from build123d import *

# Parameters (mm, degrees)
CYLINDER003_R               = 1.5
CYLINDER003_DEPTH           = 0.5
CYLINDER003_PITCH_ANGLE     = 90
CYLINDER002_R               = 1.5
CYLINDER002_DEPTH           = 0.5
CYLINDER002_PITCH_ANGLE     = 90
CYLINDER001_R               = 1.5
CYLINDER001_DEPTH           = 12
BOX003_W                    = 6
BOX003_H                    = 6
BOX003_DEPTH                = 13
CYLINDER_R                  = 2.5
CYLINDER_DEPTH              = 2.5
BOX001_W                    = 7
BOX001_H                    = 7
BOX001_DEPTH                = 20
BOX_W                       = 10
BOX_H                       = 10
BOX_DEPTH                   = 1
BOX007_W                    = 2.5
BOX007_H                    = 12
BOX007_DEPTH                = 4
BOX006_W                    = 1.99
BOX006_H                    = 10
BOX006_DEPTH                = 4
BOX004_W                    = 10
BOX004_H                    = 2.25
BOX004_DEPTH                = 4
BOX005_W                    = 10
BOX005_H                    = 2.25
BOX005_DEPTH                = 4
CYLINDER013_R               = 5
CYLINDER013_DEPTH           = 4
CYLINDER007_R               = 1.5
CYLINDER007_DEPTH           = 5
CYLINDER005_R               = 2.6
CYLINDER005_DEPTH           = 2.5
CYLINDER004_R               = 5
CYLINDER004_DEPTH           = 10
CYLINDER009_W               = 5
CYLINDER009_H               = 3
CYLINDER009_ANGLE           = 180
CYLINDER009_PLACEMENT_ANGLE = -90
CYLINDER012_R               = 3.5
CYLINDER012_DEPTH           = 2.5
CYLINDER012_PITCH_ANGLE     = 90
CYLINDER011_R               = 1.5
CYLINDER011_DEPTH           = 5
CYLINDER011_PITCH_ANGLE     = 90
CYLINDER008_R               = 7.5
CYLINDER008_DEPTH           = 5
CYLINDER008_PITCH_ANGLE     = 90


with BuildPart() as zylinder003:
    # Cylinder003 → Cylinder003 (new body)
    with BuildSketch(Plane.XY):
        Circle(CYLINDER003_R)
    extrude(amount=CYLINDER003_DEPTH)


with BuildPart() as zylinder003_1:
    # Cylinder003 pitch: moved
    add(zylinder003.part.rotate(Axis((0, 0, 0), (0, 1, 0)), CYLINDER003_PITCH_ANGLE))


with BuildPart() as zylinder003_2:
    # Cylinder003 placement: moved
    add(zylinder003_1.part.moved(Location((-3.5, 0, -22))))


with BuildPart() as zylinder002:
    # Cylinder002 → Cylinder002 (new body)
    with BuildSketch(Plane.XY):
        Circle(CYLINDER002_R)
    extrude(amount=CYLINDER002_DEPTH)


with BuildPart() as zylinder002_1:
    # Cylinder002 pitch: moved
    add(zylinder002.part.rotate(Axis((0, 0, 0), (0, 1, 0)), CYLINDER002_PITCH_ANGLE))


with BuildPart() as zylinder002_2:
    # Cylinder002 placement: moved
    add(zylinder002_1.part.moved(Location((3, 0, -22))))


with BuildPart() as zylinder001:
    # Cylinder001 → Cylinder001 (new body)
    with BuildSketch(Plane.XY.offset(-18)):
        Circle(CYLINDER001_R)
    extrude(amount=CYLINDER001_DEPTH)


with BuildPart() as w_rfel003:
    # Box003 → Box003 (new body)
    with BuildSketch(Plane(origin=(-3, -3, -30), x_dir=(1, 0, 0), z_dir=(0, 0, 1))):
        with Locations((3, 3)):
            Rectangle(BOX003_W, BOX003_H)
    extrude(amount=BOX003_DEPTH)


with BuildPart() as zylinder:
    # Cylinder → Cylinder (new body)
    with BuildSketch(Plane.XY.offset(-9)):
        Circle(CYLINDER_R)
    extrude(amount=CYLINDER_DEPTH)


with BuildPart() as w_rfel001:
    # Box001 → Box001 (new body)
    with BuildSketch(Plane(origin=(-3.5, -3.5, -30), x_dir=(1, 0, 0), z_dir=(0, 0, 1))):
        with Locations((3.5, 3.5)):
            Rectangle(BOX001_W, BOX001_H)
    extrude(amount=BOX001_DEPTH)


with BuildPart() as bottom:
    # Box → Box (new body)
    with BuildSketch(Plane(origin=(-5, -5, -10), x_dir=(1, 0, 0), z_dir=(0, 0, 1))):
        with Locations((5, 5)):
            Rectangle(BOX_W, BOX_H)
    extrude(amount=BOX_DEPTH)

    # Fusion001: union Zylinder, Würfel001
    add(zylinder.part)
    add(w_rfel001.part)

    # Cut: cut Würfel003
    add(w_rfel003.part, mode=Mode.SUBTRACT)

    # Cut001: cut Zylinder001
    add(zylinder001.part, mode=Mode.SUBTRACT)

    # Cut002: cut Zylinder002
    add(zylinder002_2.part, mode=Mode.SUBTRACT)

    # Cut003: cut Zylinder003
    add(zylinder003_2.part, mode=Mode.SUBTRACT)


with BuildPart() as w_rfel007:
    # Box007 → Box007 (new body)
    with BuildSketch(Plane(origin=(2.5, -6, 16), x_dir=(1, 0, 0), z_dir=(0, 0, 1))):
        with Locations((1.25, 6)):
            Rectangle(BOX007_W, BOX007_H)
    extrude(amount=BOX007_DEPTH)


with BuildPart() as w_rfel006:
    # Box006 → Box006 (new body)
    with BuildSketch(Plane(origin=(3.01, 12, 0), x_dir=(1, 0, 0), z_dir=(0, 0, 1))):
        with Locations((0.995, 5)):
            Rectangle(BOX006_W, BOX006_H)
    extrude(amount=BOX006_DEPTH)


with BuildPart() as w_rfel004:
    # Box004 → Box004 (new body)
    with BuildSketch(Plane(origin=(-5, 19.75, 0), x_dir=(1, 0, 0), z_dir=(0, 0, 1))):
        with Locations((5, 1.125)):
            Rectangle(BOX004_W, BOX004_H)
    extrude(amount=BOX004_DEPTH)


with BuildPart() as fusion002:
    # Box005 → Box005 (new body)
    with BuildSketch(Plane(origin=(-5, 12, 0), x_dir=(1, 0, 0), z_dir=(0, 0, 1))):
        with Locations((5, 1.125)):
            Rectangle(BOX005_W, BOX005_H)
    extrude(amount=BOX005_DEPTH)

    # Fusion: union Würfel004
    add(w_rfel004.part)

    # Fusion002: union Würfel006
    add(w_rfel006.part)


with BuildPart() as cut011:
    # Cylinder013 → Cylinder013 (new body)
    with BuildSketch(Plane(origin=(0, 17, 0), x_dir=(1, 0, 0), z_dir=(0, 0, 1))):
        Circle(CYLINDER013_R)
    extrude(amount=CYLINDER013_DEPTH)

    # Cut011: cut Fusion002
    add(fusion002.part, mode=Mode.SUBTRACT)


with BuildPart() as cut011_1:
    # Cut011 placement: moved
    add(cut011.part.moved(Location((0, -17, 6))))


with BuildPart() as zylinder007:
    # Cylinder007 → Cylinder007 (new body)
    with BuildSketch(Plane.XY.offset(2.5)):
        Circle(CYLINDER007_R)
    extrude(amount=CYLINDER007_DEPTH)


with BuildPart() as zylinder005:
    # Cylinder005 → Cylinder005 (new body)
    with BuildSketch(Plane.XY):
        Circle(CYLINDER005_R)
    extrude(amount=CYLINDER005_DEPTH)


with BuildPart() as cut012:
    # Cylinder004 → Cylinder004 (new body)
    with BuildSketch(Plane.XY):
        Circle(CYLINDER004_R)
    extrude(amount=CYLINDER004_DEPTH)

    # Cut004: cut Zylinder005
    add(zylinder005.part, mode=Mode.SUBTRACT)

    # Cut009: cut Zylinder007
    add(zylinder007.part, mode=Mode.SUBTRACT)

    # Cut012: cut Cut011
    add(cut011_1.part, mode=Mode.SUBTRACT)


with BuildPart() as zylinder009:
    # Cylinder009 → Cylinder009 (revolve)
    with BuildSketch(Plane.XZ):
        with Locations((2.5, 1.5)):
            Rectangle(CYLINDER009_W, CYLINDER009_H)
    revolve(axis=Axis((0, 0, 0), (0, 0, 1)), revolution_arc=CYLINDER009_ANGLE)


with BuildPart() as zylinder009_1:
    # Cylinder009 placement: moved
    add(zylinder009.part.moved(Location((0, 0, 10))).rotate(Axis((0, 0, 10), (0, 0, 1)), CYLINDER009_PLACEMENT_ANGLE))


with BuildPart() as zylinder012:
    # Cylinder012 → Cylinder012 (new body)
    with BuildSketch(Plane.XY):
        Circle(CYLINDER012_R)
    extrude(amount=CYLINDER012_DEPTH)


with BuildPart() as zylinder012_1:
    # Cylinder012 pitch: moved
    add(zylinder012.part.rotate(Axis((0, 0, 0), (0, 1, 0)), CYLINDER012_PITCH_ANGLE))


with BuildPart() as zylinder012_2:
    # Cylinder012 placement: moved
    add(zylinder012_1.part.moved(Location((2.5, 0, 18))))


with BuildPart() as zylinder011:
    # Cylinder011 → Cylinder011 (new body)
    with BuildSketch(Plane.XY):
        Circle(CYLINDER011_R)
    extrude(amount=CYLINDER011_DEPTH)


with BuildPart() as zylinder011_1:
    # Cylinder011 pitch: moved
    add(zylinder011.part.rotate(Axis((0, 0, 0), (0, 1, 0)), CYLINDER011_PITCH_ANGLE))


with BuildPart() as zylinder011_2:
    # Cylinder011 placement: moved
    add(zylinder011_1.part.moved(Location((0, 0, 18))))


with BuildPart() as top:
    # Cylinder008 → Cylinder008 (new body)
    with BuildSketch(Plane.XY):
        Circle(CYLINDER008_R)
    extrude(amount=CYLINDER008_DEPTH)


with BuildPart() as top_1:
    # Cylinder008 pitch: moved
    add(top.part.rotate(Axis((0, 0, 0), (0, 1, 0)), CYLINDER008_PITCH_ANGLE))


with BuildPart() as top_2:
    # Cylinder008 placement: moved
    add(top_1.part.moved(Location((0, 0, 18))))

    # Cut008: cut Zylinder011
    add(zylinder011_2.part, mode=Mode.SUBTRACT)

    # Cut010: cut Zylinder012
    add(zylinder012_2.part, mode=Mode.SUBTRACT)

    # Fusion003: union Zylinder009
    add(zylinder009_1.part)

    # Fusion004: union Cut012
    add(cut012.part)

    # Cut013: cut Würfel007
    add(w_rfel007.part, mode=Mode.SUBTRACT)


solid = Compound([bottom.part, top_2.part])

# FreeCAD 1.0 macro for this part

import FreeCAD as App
import Part
import Sketcher
Q = App.Units.Quantity

doc = App.newDocument("Part")
body = doc.addObject("PartDesign::Body", "Body")

# Sketch on XY plane
sketch1 = doc.addObject("Sketcher::SketchObject", "Sketch")
body.addObject(sketch1)
sketch1.AttachmentSupport = (doc.XY_Plane, [""])
sketch1.MapMode = "FlatFace"
sketch1.addGeometry(Part.Circle(App.Vector(0, 0, 0), App.Vector(0, 0, 1), 1.5), False)
sketch1.addConstraint(Sketcher.Constraint("Coincident", 0, 3, -1, 1))
sketch1.addConstraint(Sketcher.Constraint("Diameter", 0, Q("3 mm")))
pad1 = doc.addObject("PartDesign::Pad", "Pad")
body.addObject(pad1)
pad1.Profile = sketch1
pad1.Length = 0.5
body2 = doc.addObject("PartDesign::Body", "Body001")
doc.recompute()

body.Placement = App.Placement(App.Vector(0, 0, 0), App.Rotation(App.Vector(0, 1, 0), 90))
boolean = doc.addObject("PartDesign::Boolean", "Boolean")
body2.addObject(boolean)
boolean.Type = "Fuse"
boolean.addObjects([body])
body3 = doc.addObject("PartDesign::Body", "Body002")
doc.recompute()

body2.Placement = App.Placement(App.Vector(-3.5, 0, -22), App.Rotation(App.Vector(0, 0, 1), 0))
boolean2 = doc.addObject("PartDesign::Boolean", "Boolean001")
body3.addObject(boolean2)
boolean2.Type = "Fuse"
boolean2.addObjects([body2])
body4 = doc.addObject("PartDesign::Body", "Body003")

# Sketch on XY plane
sketch2 = doc.addObject("Sketcher::SketchObject", "Sketch001")
body4.addObject(sketch2)
sketch2.AttachmentSupport = (doc.getObject("XY_Plane003"), [""])
sketch2.MapMode = "FlatFace"
sketch2.addGeometry(Part.Circle(App.Vector(0, 0, 0), App.Vector(0, 0, 1), 1.5), False)
sketch2.addConstraint(Sketcher.Constraint("Coincident", 0, 3, -1, 1))
sketch2.addConstraint(Sketcher.Constraint("Diameter", 0, Q("3 mm")))
pad2 = doc.addObject("PartDesign::Pad", "Pad001")
body4.addObject(pad2)
pad2.Profile = sketch2
pad2.Length = 0.5
body5 = doc.addObject("PartDesign::Body", "Body004")
doc.recompute()

body4.Placement = App.Placement(App.Vector(0, 0, 0), App.Rotation(App.Vector(0, 1, 0), 90))
boolean3 = doc.addObject("PartDesign::Boolean", "Boolean002")
body5.addObject(boolean3)
boolean3.Type = "Fuse"
boolean3.addObjects([body4])
body6 = doc.addObject("PartDesign::Body", "Body005")
doc.recompute()

body5.Placement = App.Placement(App.Vector(3, 0, -22), App.Rotation(App.Vector(0, 0, 1), 0))
boolean4 = doc.addObject("PartDesign::Boolean", "Boolean003")
body6.addObject(boolean4)
boolean4.Type = "Fuse"
boolean4.addObjects([body5])
body7 = doc.addObject("PartDesign::Body", "Body006")

# Sketch on XY plane
sketch3 = doc.addObject("Sketcher::SketchObject", "Sketch002")
body7.addObject(sketch3)
sketch3.AttachmentSupport = (doc.getObject("XY_Plane006"), [""])
sketch3.MapMode = "FlatFace"
sketch3.AttachmentOffset = App.Placement(App.Vector(0, 0, -18), App.Rotation())
sketch3.addGeometry(Part.Circle(App.Vector(0, 0, 0), App.Vector(0, 0, 1), 1.5), False)
sketch3.addConstraint(Sketcher.Constraint("Coincident", 0, 3, -1, 1))
sketch3.addConstraint(Sketcher.Constraint("Diameter", 0, Q("3 mm")))
pad3 = doc.addObject("PartDesign::Pad", "Pad002")
body7.addObject(pad3)
pad3.Profile = sketch3
pad3.Length = 12
body8 = doc.addObject("PartDesign::Body", "Body007")

# Sketch on XY plane
sketch4 = doc.addObject("Sketcher::SketchObject", "Sketch003")
body8.addObject(sketch4)
sketch4.AttachmentSupport = (doc.getObject("XY_Plane007"), [""])
sketch4.MapMode = "FlatFace"
sketch4.AttachmentOffset = App.Placement(App.Vector(0, 0, -30), App.Rotation())
sketch4.addGeometry(Part.LineSegment(App.Vector(-3, 3, 0), App.Vector(-3, -3, 0)), False)
sketch4.addGeometry(Part.LineSegment(App.Vector(-3, -3, 0), App.Vector(3, -3, 0)), False)
sketch4.addGeometry(Part.LineSegment(App.Vector(3, -3, 0), App.Vector(3, 3, 0)), False)
sketch4.addGeometry(Part.LineSegment(App.Vector(3, 3, 0), App.Vector(-3, 3, 0)), False)
sketch4.addConstraint(Sketcher.Constraint("Coincident", 0, 2, 1, 1))
sketch4.addConstraint(Sketcher.Constraint("Coincident", 1, 2, 2, 1))
sketch4.addConstraint(Sketcher.Constraint("Coincident", 2, 2, 3, 1))
sketch4.addConstraint(Sketcher.Constraint("Coincident", 3, 2, 0, 1))
sketch4.addConstraint(Sketcher.Constraint("Vertical", 0))
sketch4.addConstraint(Sketcher.Constraint("Horizontal", 1))
sketch4.addConstraint(Sketcher.Constraint("Vertical", 2))
sketch4.addConstraint(Sketcher.Constraint("Horizontal", 3))
sketch4.addConstraint(Sketcher.Constraint("Symmetric", 0, 2, 2, 2, -1, 1))
sketch4.addConstraint(Sketcher.Constraint("Equal", 3, 0))
sketch4.addConstraint(Sketcher.Constraint("DistanceX", 1, 1, 1, 2, Q("6 mm")))
pad4 = doc.addObject("PartDesign::Pad", "Pad003")
body8.addObject(pad4)
pad4.Profile = sketch4
pad4.Length = 13
body9 = doc.addObject("PartDesign::Body", "Body008")

# Sketch on XY plane
sketch5 = doc.addObject("Sketcher::SketchObject", "Sketch004")
body9.addObject(sketch5)
sketch5.AttachmentSupport = (doc.getObject("XY_Plane008"), [""])
sketch5.MapMode = "FlatFace"
sketch5.AttachmentOffset = App.Placement(App.Vector(0, 0, -9), App.Rotation())
sketch5.addGeometry(Part.Circle(App.Vector(0, 0, 0), App.Vector(0, 0, 1), 2.5), False)
sketch5.addConstraint(Sketcher.Constraint("Coincident", 0, 3, -1, 1))
sketch5.addConstraint(Sketcher.Constraint("Diameter", 0, Q("5 mm")))
pad5 = doc.addObject("PartDesign::Pad", "Pad004")
body9.addObject(pad5)
pad5.Profile = sketch5
pad5.Length = 2.5
body10 = doc.addObject("PartDesign::Body", "Body009")

# Sketch on XY plane
sketch6 = doc.addObject("Sketcher::SketchObject", "Sketch005")
body10.addObject(sketch6)
sketch6.AttachmentSupport = (doc.getObject("XY_Plane009"), [""])
sketch6.MapMode = "FlatFace"
sketch6.AttachmentOffset = App.Placement(App.Vector(0, 0, -30), App.Rotation())
sketch6.addGeometry(Part.LineSegment(App.Vector(-4, 4, 0), App.Vector(-4, -4, 0)), False)
sketch6.addGeometry(Part.LineSegment(App.Vector(-4, -4, 0), App.Vector(4, -4, 0)), False)
sketch6.addGeometry(Part.LineSegment(App.Vector(4, -4, 0), App.Vector(4, 4, 0)), False)
sketch6.addGeometry(Part.LineSegment(App.Vector(4, 4, 0), App.Vector(-4, 4, 0)), False)
sketch6.addConstraint(Sketcher.Constraint("Coincident", 0, 2, 1, 1))
sketch6.addConstraint(Sketcher.Constraint("Coincident", 1, 2, 2, 1))
sketch6.addConstraint(Sketcher.Constraint("Coincident", 2, 2, 3, 1))
sketch6.addConstraint(Sketcher.Constraint("Coincident", 3, 2, 0, 1))
sketch6.addConstraint(Sketcher.Constraint("Vertical", 0))
sketch6.addConstraint(Sketcher.Constraint("Horizontal", 1))
sketch6.addConstraint(Sketcher.Constraint("Vertical", 2))
sketch6.addConstraint(Sketcher.Constraint("Horizontal", 3))
sketch6.addConstraint(Sketcher.Constraint("Symmetric", 0, 2, 2, 2, -1, 1))
sketch6.addConstraint(Sketcher.Constraint("Equal", 3, 0))
sketch6.addConstraint(Sketcher.Constraint("DistanceX", 1, 1, 1, 2, Q("7 mm")))
pad6 = doc.addObject("PartDesign::Pad", "Pad005")
body10.addObject(pad6)
pad6.Profile = sketch6
pad6.Length = 20
body11 = doc.addObject("PartDesign::Body", "Body010")

# Sketch on XY plane
sketch7 = doc.addObject("Sketcher::SketchObject", "Sketch006")
body11.addObject(sketch7)
sketch7.AttachmentSupport = (doc.getObject("XY_Plane010"), [""])
sketch7.MapMode = "FlatFace"
sketch7.AttachmentOffset = App.Placement(App.Vector(0, 0, -10), App.Rotation())
sketch7.addGeometry(Part.LineSegment(App.Vector(-5, 5, 0), App.Vector(-5, -5, 0)), False)
sketch7.addGeometry(Part.LineSegment(App.Vector(-5, -5, 0), App.Vector(5, -5, 0)), False)
sketch7.addGeometry(Part.LineSegment(App.Vector(5, -5, 0), App.Vector(5, 5, 0)), False)
sketch7.addGeometry(Part.LineSegment(App.Vector(5, 5, 0), App.Vector(-5, 5, 0)), False)
sketch7.addConstraint(Sketcher.Constraint("Coincident", 0, 2, 1, 1))
sketch7.addConstraint(Sketcher.Constraint("Coincident", 1, 2, 2, 1))
sketch7.addConstraint(Sketcher.Constraint("Coincident", 2, 2, 3, 1))
sketch7.addConstraint(Sketcher.Constraint("Coincident", 3, 2, 0, 1))
sketch7.addConstraint(Sketcher.Constraint("Vertical", 0))
sketch7.addConstraint(Sketcher.Constraint("Horizontal", 1))
sketch7.addConstraint(Sketcher.Constraint("Vertical", 2))
sketch7.addConstraint(Sketcher.Constraint("Horizontal", 3))
sketch7.addConstraint(Sketcher.Constraint("Symmetric", 0, 2, 2, 2, -1, 1))
sketch7.addConstraint(Sketcher.Constraint("Equal", 3, 0))
sketch7.addConstraint(Sketcher.Constraint("DistanceX", 1, 1, 1, 2, Q("10 mm")))
pad7 = doc.addObject("PartDesign::Pad", "Pad006")
body11.addObject(pad7)
pad7.Profile = sketch7
pad7.Length = 1
doc.recompute()

boolean5 = doc.addObject("PartDesign::Boolean", "Boolean004")
body11.addObject(boolean5)
boolean5.Type = "Fuse"
boolean5.addObjects([body9])
doc.recompute()

boolean6 = doc.addObject("PartDesign::Boolean", "Boolean005")
body11.addObject(boolean6)
boolean6.Type = "Fuse"
boolean6.addObjects([body10])
doc.recompute()

boolean7 = doc.addObject("PartDesign::Boolean", "Boolean006")
body11.addObject(boolean7)
boolean7.Type = "Cut"
boolean7.addObjects([body8])
doc.recompute()

boolean8 = doc.addObject("PartDesign::Boolean", "Boolean007")
body11.addObject(boolean8)
boolean8.Type = "Cut"
boolean8.addObjects([body7])
doc.recompute()

boolean9 = doc.addObject("PartDesign::Boolean", "Boolean008")
body11.addObject(boolean9)
boolean9.Type = "Cut"
boolean9.addObjects([body6])
doc.recompute()

boolean10 = doc.addObject("PartDesign::Boolean", "Boolean009")
body11.addObject(boolean10)
boolean10.Type = "Cut"
boolean10.addObjects([body3])
body12 = doc.addObject("PartDesign::Body", "Body011")

# Sketch on XY plane
sketch8 = doc.addObject("Sketcher::SketchObject", "Sketch007")
body12.addObject(sketch8)
sketch8.AttachmentSupport = (doc.getObject("XY_Plane011"), [""])
sketch8.MapMode = "FlatFace"
sketch8.AttachmentOffset = App.Placement(App.Vector(0, 0, 16), App.Rotation())
sketch8.addGeometry(Part.LineSegment(App.Vector(2.5, 6, 0), App.Vector(2.5, -6, 0)), False)
sketch8.addGeometry(Part.LineSegment(App.Vector(2.5, -6, 0), App.Vector(5, -6, 0)), False)
sketch8.addGeometry(Part.LineSegment(App.Vector(5, -6, 0), App.Vector(5, 6, 0)), False)
sketch8.addGeometry(Part.LineSegment(App.Vector(5, 6, 0), App.Vector(2.5, 6, 0)), False)
sketch8.addConstraint(Sketcher.Constraint("Coincident", 0, 2, 1, 1))
sketch8.addConstraint(Sketcher.Constraint("Coincident", 1, 2, 2, 1))
sketch8.addConstraint(Sketcher.Constraint("Coincident", 2, 2, 3, 1))
sketch8.addConstraint(Sketcher.Constraint("Coincident", 3, 2, 0, 1))
sketch8.addConstraint(Sketcher.Constraint("Vertical", 0))
sketch8.addConstraint(Sketcher.Constraint("Horizontal", 1))
sketch8.addConstraint(Sketcher.Constraint("Vertical", 2))
sketch8.addConstraint(Sketcher.Constraint("Horizontal", 3))
sketch8.addConstraint(Sketcher.Constraint("DistanceY", 0, 2, 0, 1, Q("12 mm")))
sketch8.addConstraint(Sketcher.Constraint("DistanceX", 1, 1, 1, 2, Q("2.5 mm")))
sketch8.addConstraint(Sketcher.Constraint("DistanceY", 0, 2, -1, 1, Q("6 mm")))
sketch8.addConstraint(Sketcher.Constraint("DistanceX", -1, 1, 1, 2, Q("5 mm")))
pad8 = doc.addObject("PartDesign::Pad", "Pad007")
body12.addObject(pad8)
pad8.Profile = sketch8
pad8.Length = 4
body13 = doc.addObject("PartDesign::Body", "Body012")

# Sketch on XY plane
sketch9 = doc.addObject("Sketcher::SketchObject", "Sketch008")
body13.addObject(sketch9)
sketch9.AttachmentSupport = (doc.getObject("XY_Plane012"), [""])
sketch9.MapMode = "FlatFace"
sketch9.addGeometry(Part.LineSegment(App.Vector(3, 22, 0), App.Vector(3, 12, 0)), False)
sketch9.addGeometry(Part.LineSegment(App.Vector(3, 12, 0), App.Vector(5, 12, 0)), False)
sketch9.addGeometry(Part.LineSegment(App.Vector(5, 12, 0), App.Vector(5, 22, 0)), False)
sketch9.addGeometry(Part.LineSegment(App.Vector(5, 22, 0), App.Vector(3, 22, 0)), False)
sketch9.addConstraint(Sketcher.Constraint("Coincident", 0, 2, 1, 1))
sketch9.addConstraint(Sketcher.Constraint("Coincident", 1, 2, 2, 1))
sketch9.addConstraint(Sketcher.Constraint("Coincident", 2, 2, 3, 1))
sketch9.addConstraint(Sketcher.Constraint("Coincident", 3, 2, 0, 1))
sketch9.addConstraint(Sketcher.Constraint("Vertical", 0))
sketch9.addConstraint(Sketcher.Constraint("Horizontal", 1))
sketch9.addConstraint(Sketcher.Constraint("Vertical", 2))
sketch9.addConstraint(Sketcher.Constraint("Horizontal", 3))
sketch9.addConstraint(Sketcher.Constraint("DistanceY", 0, 2, 0, 1, Q("10 mm")))
sketch9.addConstraint(Sketcher.Constraint("DistanceY", -1, 1, 0, 2, Q("12 mm")))
sketch9.addConstraint(Sketcher.Constraint("DistanceX", -1, 1, 1, 2, Q("5 mm")))
sketch9.addConstraint(Sketcher.Constraint("DistanceX", 1, 1, 1, 2, Q("1.99 mm")))
pad9 = doc.addObject("PartDesign::Pad", "Pad008")
body13.addObject(pad9)
pad9.Profile = sketch9
pad9.Length = 4
body14 = doc.addObject("PartDesign::Body", "Body013")

# Sketch on XY plane
sketch10 = doc.addObject("Sketcher::SketchObject", "Sketch009")
body14.addObject(sketch10)
sketch10.AttachmentSupport = (doc.getObject("XY_Plane013"), [""])
sketch10.MapMode = "FlatFace"
sketch10.addGeometry(Part.LineSegment(App.Vector(-5, 22, 0), App.Vector(-5, 19.8, 0)), False)
sketch10.addGeometry(Part.LineSegment(App.Vector(-5, 19.8, 0), App.Vector(5, 19.8, 0)), False)
sketch10.addGeometry(Part.LineSegment(App.Vector(5, 19.8, 0), App.Vector(5, 22, 0)), False)
sketch10.addGeometry(Part.LineSegment(App.Vector(5, 22, 0), App.Vector(-5, 22, 0)), False)
sketch10.addConstraint(Sketcher.Constraint("Coincident", 0, 2, 1, 1))
sketch10.addConstraint(Sketcher.Constraint("Coincident", 1, 2, 2, 1))
sketch10.addConstraint(Sketcher.Constraint("Coincident", 2, 2, 3, 1))
sketch10.addConstraint(Sketcher.Constraint("Coincident", 3, 2, 0, 1))
sketch10.addConstraint(Sketcher.Constraint("Vertical", 0))
sketch10.addConstraint(Sketcher.Constraint("Horizontal", 1))
sketch10.addConstraint(Sketcher.Constraint("Vertical", 2))
sketch10.addConstraint(Sketcher.Constraint("Horizontal", 3))
sketch10.addConstraint(Sketcher.Constraint("DistanceX", 1, 1, 1, 2, Q("10 mm")))
sketch10.addConstraint(Sketcher.Constraint("DistanceX", 0, 2, -1, 1, Q("5 mm")))
sketch10.addConstraint(Sketcher.Constraint("DistanceY", -1, 1, 2, 2, Q("22 mm")))
sketch10.addConstraint(Sketcher.Constraint("DistanceY", 0, 2, 0, 1, Q("2.25 mm")))
pad10 = doc.addObject("PartDesign::Pad", "Pad009")
body14.addObject(pad10)
pad10.Profile = sketch10
pad10.Length = 4
body15 = doc.addObject("PartDesign::Body", "Body014")
body15.AllowCompound = True

# Sketch on XY plane
sketch11 = doc.addObject("Sketcher::SketchObject", "Sketch010")
body15.addObject(sketch11)
sketch11.AttachmentSupport = (doc.getObject("XY_Plane014"), [""])
sketch11.MapMode = "FlatFace"
sketch11.addGeometry(Part.LineSegment(App.Vector(-5, 14.2, 0), App.Vector(-5, 12, 0)), False)
sketch11.addGeometry(Part.LineSegment(App.Vector(-5, 12, 0), App.Vector(5, 12, 0)), False)
sketch11.addGeometry(Part.LineSegment(App.Vector(5, 12, 0), App.Vector(5, 14.2, 0)), False)
sketch11.addGeometry(Part.LineSegment(App.Vector(5, 14.2, 0), App.Vector(-5, 14.2, 0)), False)
sketch11.addConstraint(Sketcher.Constraint("Coincident", 0, 2, 1, 1))
sketch11.addConstraint(Sketcher.Constraint("Coincident", 1, 2, 2, 1))
sketch11.addConstraint(Sketcher.Constraint("Coincident", 2, 2, 3, 1))
sketch11.addConstraint(Sketcher.Constraint("Coincident", 3, 2, 0, 1))
sketch11.addConstraint(Sketcher.Constraint("Vertical", 0))
sketch11.addConstraint(Sketcher.Constraint("Horizontal", 1))
sketch11.addConstraint(Sketcher.Constraint("Vertical", 2))
sketch11.addConstraint(Sketcher.Constraint("Horizontal", 3))
sketch11.addConstraint(Sketcher.Constraint("DistanceX", 1, 1, 1, 2, Q("10 mm")))
sketch11.addConstraint(Sketcher.Constraint("DistanceX", 0, 2, -1, 1, Q("5 mm")))
sketch11.addConstraint(Sketcher.Constraint("DistanceY", -1, 1, 0, 2, Q("12 mm")))
sketch11.addConstraint(Sketcher.Constraint("DistanceY", 0, 2, 0, 1, Q("2.25 mm")))
pad11 = doc.addObject("PartDesign::Pad", "Pad010")
body15.addObject(pad11)
pad11.Profile = sketch11
pad11.Length = 4
doc.recompute()

boolean11 = doc.addObject("PartDesign::Boolean", "Boolean010")
body15.addObject(boolean11)
boolean11.Type = "Fuse"
boolean11.addObjects([body14])
doc.recompute()

boolean12 = doc.addObject("PartDesign::Boolean", "Boolean011")
body15.addObject(boolean12)
boolean12.Type = "Fuse"
boolean12.addObjects([body13])
body16 = doc.addObject("PartDesign::Body", "Body015")

# Sketch on XY plane
sketch12 = doc.addObject("Sketcher::SketchObject", "Sketch011")
body16.addObject(sketch12)
sketch12.AttachmentSupport = (doc.getObject("XY_Plane015"), [""])
sketch12.MapMode = "FlatFace"
sketch12.addGeometry(Part.Circle(App.Vector(0, 17, 0), App.Vector(0, 0, 1), 5), False)
sketch12.addConstraint(Sketcher.Constraint("PointOnObject", 0, 3, -2))
sketch12.addConstraint(Sketcher.Constraint("Diameter", 0, Q("10 mm")))
sketch12.addConstraint(Sketcher.Constraint("DistanceY", -1, 1, 0, 3, Q("17 mm")))
pad12 = doc.addObject("PartDesign::Pad", "Pad011")
body16.addObject(pad12)
pad12.Profile = sketch12
pad12.Length = 4
doc.recompute()

boolean13 = doc.addObject("PartDesign::Boolean", "Boolean012")
body16.addObject(boolean13)
boolean13.Type = "Cut"
boolean13.addObjects([body15])
body17 = doc.addObject("PartDesign::Body", "Body016")
doc.recompute()

body16.Placement = App.Placement(App.Vector(0, -17, 6), App.Rotation(App.Vector(0, 0, 1), 0))
boolean14 = doc.addObject("PartDesign::Boolean", "Boolean013")
body17.addObject(boolean14)
boolean14.Type = "Fuse"
boolean14.addObjects([body16])
body18 = doc.addObject("PartDesign::Body", "Body017")

# Sketch on XY plane
sketch13 = doc.addObject("Sketcher::SketchObject", "Sketch012")
body18.addObject(sketch13)
sketch13.AttachmentSupport = (doc.getObject("XY_Plane017"), [""])
sketch13.MapMode = "FlatFace"
sketch13.AttachmentOffset = App.Placement(App.Vector(0, 0, 2.5), App.Rotation())
sketch13.addGeometry(Part.Circle(App.Vector(0, 0, 0), App.Vector(0, 0, 1), 1.5), False)
sketch13.addConstraint(Sketcher.Constraint("Coincident", 0, 3, -1, 1))
sketch13.addConstraint(Sketcher.Constraint("Diameter", 0, Q("3 mm")))
pad13 = doc.addObject("PartDesign::Pad", "Pad012")
body18.addObject(pad13)
pad13.Profile = sketch13
pad13.Length = 5
body19 = doc.addObject("PartDesign::Body", "Body018")

# Sketch on XY plane
sketch14 = doc.addObject("Sketcher::SketchObject", "Sketch013")
body19.addObject(sketch14)
sketch14.AttachmentSupport = (doc.getObject("XY_Plane018"), [""])
sketch14.MapMode = "FlatFace"
sketch14.addGeometry(Part.Circle(App.Vector(0, 0, 0), App.Vector(0, 0, 1), 2.6), False)
sketch14.addConstraint(Sketcher.Constraint("Coincident", 0, 3, -1, 1))
sketch14.addConstraint(Sketcher.Constraint("Diameter", 0, Q("5.2 mm")))
pad14 = doc.addObject("PartDesign::Pad", "Pad013")
body19.addObject(pad14)
pad14.Profile = sketch14
pad14.Length = 2.5
body20 = doc.addObject("PartDesign::Body", "Body019")

# Sketch on XY plane
sketch15 = doc.addObject("Sketcher::SketchObject", "Sketch014")
body20.addObject(sketch15)
sketch15.AttachmentSupport = (doc.getObject("XY_Plane019"), [""])
sketch15.MapMode = "FlatFace"
sketch15.addGeometry(Part.Circle(App.Vector(0, 0, 0), App.Vector(0, 0, 1), 5), False)
sketch15.addConstraint(Sketcher.Constraint("Coincident", 0, 3, -1, 1))
sketch15.addConstraint(Sketcher.Constraint("Diameter", 0, Q("10 mm")))
pad15 = doc.addObject("PartDesign::Pad", "Pad014")
body20.addObject(pad15)
pad15.Profile = sketch15
pad15.Length = 10
doc.recompute()

boolean15 = doc.addObject("PartDesign::Boolean", "Boolean014")
body20.addObject(boolean15)
boolean15.Type = "Cut"
boolean15.addObjects([body19])
doc.recompute()

boolean16 = doc.addObject("PartDesign::Boolean", "Boolean015")
body20.addObject(boolean16)
boolean16.Type = "Cut"
boolean16.addObjects([body18])
doc.recompute()

boolean17 = doc.addObject("PartDesign::Boolean", "Boolean016")
body20.addObject(boolean17)
boolean17.Type = "Cut"
boolean17.addObjects([body17])
body21 = doc.addObject("PartDesign::Body", "Body020")

# Sketch on XZ plane
sketch16 = doc.addObject("Sketcher::SketchObject", "Sketch015")
body21.addObject(sketch16)
sketch16.AttachmentSupport = (doc.getObject("XZ_Plane020"), [""])
sketch16.MapMode = "FlatFace"
sketch16.addGeometry(Part.LineSegment(App.Vector(0, 3, 0), App.Vector(0, 0, 0)), False)
sketch16.addGeometry(Part.LineSegment(App.Vector(0, 0, 0), App.Vector(5, 0, 0)), False)
sketch16.addGeometry(Part.LineSegment(App.Vector(5, 0, 0), App.Vector(5, 3, 0)), False)
sketch16.addGeometry(Part.LineSegment(App.Vector(5, 3, 0), App.Vector(0, 3, 0)), False)
sketch16.addConstraint(Sketcher.Constraint("Coincident", 0, 2, 1, 1))
sketch16.addConstraint(Sketcher.Constraint("Coincident", 1, 2, 2, 1))
sketch16.addConstraint(Sketcher.Constraint("Coincident", 2, 2, 3, 1))
sketch16.addConstraint(Sketcher.Constraint("Coincident", 3, 2, 0, 1))
sketch16.addConstraint(Sketcher.Constraint("Vertical", 0))
sketch16.addConstraint(Sketcher.Constraint("Horizontal", 1))
sketch16.addConstraint(Sketcher.Constraint("Vertical", 2))
sketch16.addConstraint(Sketcher.Constraint("Horizontal", 3))
sketch16.addConstraint(Sketcher.Constraint("Coincident", 0, 2, -1, 1))
sketch16.addConstraint(Sketcher.Constraint("DistanceX", 1, 1, 1, 2, Q("5 mm")))
sketch16.addConstraint(Sketcher.Constraint("DistanceY", 0, 2, 0, 1, Q("3 mm")))
revolution = doc.addObject("PartDesign::Revolution", "Revolution")
body21.addObject(revolution)
revolution.Profile = sketch16
revolution.ReferenceAxis = (sketch16, ["V_Axis"])
revolution.Angle = 180
body22 = doc.addObject("PartDesign::Body", "Body021")
doc.recompute()

body21.Placement = App.Placement(App.Vector(0, 0, 10), App.Rotation(App.Vector(0, 0, 1), 270))
boolean18 = doc.addObject("PartDesign::Boolean", "Boolean017")
body22.addObject(boolean18)
boolean18.Type = "Fuse"
boolean18.addObjects([body21])
body23 = doc.addObject("PartDesign::Body", "Body022")

# Sketch on XY plane
sketch17 = doc.addObject("Sketcher::SketchObject", "Sketch016")
body23.addObject(sketch17)
sketch17.AttachmentSupport = (doc.getObject("XY_Plane022"), [""])
sketch17.MapMode = "FlatFace"
sketch17.addGeometry(Part.Circle(App.Vector(0, 0, 0), App.Vector(0, 0, 1), 3.5), False)
sketch17.addConstraint(Sketcher.Constraint("Coincident", 0, 3, -1, 1))
sketch17.addConstraint(Sketcher.Constraint("Diameter", 0, Q("7 mm")))
pad16 = doc.addObject("PartDesign::Pad", "Pad015")
body23.addObject(pad16)
pad16.Profile = sketch17
pad16.Length = 2.5
body24 = doc.addObject("PartDesign::Body", "Body023")
doc.recompute()

body23.Placement = App.Placement(App.Vector(0, 0, 0), App.Rotation(App.Vector(0, 1, 0), 90))
boolean19 = doc.addObject("PartDesign::Boolean", "Boolean018")
body24.addObject(boolean19)
boolean19.Type = "Fuse"
boolean19.addObjects([body23])
body25 = doc.addObject("PartDesign::Body", "Body024")
doc.recompute()

body24.Placement = App.Placement(App.Vector(2.5, 0, 18), App.Rotation(App.Vector(0, 0, 1), 0))
boolean20 = doc.addObject("PartDesign::Boolean", "Boolean019")
body25.addObject(boolean20)
boolean20.Type = "Fuse"
boolean20.addObjects([body24])
body26 = doc.addObject("PartDesign::Body", "Body025")

# Sketch on XY plane
sketch18 = doc.addObject("Sketcher::SketchObject", "Sketch017")
body26.addObject(sketch18)
sketch18.AttachmentSupport = (doc.getObject("XY_Plane025"), [""])
sketch18.MapMode = "FlatFace"
sketch18.addGeometry(Part.Circle(App.Vector(0, 0, 0), App.Vector(0, 0, 1), 1.5), False)
sketch18.addConstraint(Sketcher.Constraint("Coincident", 0, 3, -1, 1))
sketch18.addConstraint(Sketcher.Constraint("Diameter", 0, Q("3 mm")))
pad17 = doc.addObject("PartDesign::Pad", "Pad016")
body26.addObject(pad17)
pad17.Profile = sketch18
pad17.Length = 5
body27 = doc.addObject("PartDesign::Body", "Body026")
doc.recompute()

body26.Placement = App.Placement(App.Vector(0, 0, 0), App.Rotation(App.Vector(0, 1, 0), 90))
boolean21 = doc.addObject("PartDesign::Boolean", "Boolean020")
body27.addObject(boolean21)
boolean21.Type = "Fuse"
boolean21.addObjects([body26])
body28 = doc.addObject("PartDesign::Body", "Body027")
doc.recompute()

body27.Placement = App.Placement(App.Vector(0, 0, 18), App.Rotation(App.Vector(0, 0, 1), 0))
boolean22 = doc.addObject("PartDesign::Boolean", "Boolean021")
body28.addObject(boolean22)
boolean22.Type = "Fuse"
boolean22.addObjects([body27])
body29 = doc.addObject("PartDesign::Body", "Body028")

# Sketch on XY plane
sketch19 = doc.addObject("Sketcher::SketchObject", "Sketch018")
body29.addObject(sketch19)
sketch19.AttachmentSupport = (doc.getObject("XY_Plane028"), [""])
sketch19.MapMode = "FlatFace"
sketch19.addGeometry(Part.Circle(App.Vector(0, 0, 0), App.Vector(0, 0, 1), 8), False)
sketch19.addConstraint(Sketcher.Constraint("Coincident", 0, 3, -1, 1))
sketch19.addConstraint(Sketcher.Constraint("Diameter", 0, Q("15 mm")))
pad18 = doc.addObject("PartDesign::Pad", "Pad017")
body29.addObject(pad18)
pad18.Profile = sketch19
pad18.Length = 5
body30 = doc.addObject("PartDesign::Body", "Body029")
doc.recompute()

body29.Placement = App.Placement(App.Vector(0, 0, 0), App.Rotation(App.Vector(0, 1, 0), 90))
boolean23 = doc.addObject("PartDesign::Boolean", "Boolean022")
body30.addObject(boolean23)
boolean23.Type = "Fuse"
boolean23.addObjects([body29])
body31 = doc.addObject("PartDesign::Body", "Body030")
doc.recompute()

body30.Placement = App.Placement(App.Vector(0, 0, 18), App.Rotation(App.Vector(0, 0, 1), 0))
boolean24 = doc.addObject("PartDesign::Boolean", "Boolean023")
body31.addObject(boolean24)
boolean24.Type = "Fuse"
boolean24.addObjects([body30])
doc.recompute()

boolean25 = doc.addObject("PartDesign::Boolean", "Boolean024")
body31.addObject(boolean25)
boolean25.Type = "Cut"
boolean25.addObjects([body28])
doc.recompute()

boolean26 = doc.addObject("PartDesign::Boolean", "Boolean025")
body31.addObject(boolean26)
boolean26.Type = "Cut"
boolean26.addObjects([body25])
doc.recompute()

boolean27 = doc.addObject("PartDesign::Boolean", "Boolean026")
body31.addObject(boolean27)
boolean27.Type = "Fuse"
boolean27.addObjects([body22])
doc.recompute()

boolean28 = doc.addObject("PartDesign::Boolean", "Boolean027")
body31.addObject(boolean28)
boolean28.Type = "Fuse"
boolean28.addObjects([body20])
doc.recompute()

boolean29 = doc.addObject("PartDesign::Boolean", "Boolean028")
body31.addObject(boolean29)
boolean29.Type = "Cut"
boolean29.addObjects([body12])

doc.recompute()
